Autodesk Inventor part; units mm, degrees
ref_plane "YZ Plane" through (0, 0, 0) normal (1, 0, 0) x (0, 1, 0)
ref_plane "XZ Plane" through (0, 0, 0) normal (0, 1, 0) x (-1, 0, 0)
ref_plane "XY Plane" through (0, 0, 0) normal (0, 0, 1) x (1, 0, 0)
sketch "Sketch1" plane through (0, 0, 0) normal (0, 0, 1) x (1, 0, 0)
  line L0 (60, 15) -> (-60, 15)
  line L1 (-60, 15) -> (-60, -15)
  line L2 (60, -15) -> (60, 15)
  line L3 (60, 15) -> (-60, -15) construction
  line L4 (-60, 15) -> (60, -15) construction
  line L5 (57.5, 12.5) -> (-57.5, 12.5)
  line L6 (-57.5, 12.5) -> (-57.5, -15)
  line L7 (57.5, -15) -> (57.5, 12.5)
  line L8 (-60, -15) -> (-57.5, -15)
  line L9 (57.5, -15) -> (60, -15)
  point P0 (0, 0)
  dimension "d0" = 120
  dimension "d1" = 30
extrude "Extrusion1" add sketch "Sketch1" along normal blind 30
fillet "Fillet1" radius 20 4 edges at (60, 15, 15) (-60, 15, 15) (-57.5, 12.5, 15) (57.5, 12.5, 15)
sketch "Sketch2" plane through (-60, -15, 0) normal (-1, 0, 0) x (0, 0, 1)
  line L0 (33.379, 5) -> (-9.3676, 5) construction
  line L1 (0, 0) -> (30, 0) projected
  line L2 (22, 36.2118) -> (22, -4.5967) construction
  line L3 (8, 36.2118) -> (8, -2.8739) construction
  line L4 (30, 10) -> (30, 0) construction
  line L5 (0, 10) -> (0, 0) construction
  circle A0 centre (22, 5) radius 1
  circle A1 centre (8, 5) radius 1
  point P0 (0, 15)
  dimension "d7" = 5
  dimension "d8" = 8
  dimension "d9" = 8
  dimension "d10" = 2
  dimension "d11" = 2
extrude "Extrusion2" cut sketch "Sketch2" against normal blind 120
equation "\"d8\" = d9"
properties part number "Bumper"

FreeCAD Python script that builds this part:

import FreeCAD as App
import Part
import Sketcher
from FreeCAD import Vector


def edges_at(feature, points):
    """Names of the edges that pass closest to the given points."""
    edges = feature.Shape.Edges
    near = lambda p: min(range(len(edges)), key=lambda i: edges[i].distToShape(Part.Vertex(*p))[0])
    return sorted({f"Edge{near(p) + 1}" for p in points})


def add_polygon(sketch, points):
    """Adds a closed chain of lines whose ends are joined by coincident constraints."""
    first, n = sketch.GeometryCount, len(points)
    for a, b in zip(points, points[1:] + points[:1]):
        sketch.addGeometry(Part.LineSegment(App.Vector(*a, 0), App.Vector(*b, 0)), False)
    for i in range(n):
        sketch.addConstraint(Sketcher.Constraint("Coincident", first + i, 2, first + (i + 1) % n, 1))

doc = App.newDocument("Part")
params = doc.addObject("Spreadsheet::Sheet", "Params")
for row, (alias, value) in enumerate([
    ("sketch1_width", "120 mm"),
    ("sketch1_height", "30 mm"),
    ("sketch1_width2", "115 mm"),
    ("sketch1_height2", "27.5 mm"),
    ("pad1_length", "30 mm"),
    ("fillet_radius", "20 mm"),
    ("sketch2_diameter", "2 mm"),
    ("pocket1_length", "120 mm"),
], start=1):
    params.set(f"A{row}", alias)
    params.set(f"B{row}", "=" + value)
    params.setAlias(f"B{row}", alias)

body = doc.addObject("PartDesign::Body", "Body")

# Sketch on XY plane
sketch1 = body.newObject("Sketcher::SketchObject", "Sketch")
sketch1.AttachmentSupport = (doc.getObject("XY_Plane"), [""])
sketch1.MapMode = "FlatFace"
add_polygon(sketch1, [(60, -15), (60, 15), (-60, 15), (-60, -15), (-57.5, -15), (-57.5, 12.5), (57.5, 12.5), (57.5, -15)])  # lines 0-7
sketch1.addConstraint([
    Sketcher.Constraint("Vertical", 0),
    Sketcher.Constraint("Horizontal", 1),
    Sketcher.Constraint("Vertical", 2),
    Sketcher.Constraint("Horizontal", 3),
    Sketcher.Constraint("Vertical", 4),
    Sketcher.Constraint("Horizontal", 5),
    Sketcher.Constraint("Vertical", 6),
    Sketcher.Constraint("Horizontal", 7),
    Sketcher.Constraint("Symmetric", 0, 2, 2, 2, -1, 1),
    Sketcher.Constraint("Symmetric", 3, 2, 6, 2, -2),
    Sketcher.Constraint("DistanceX", 1, 2, 1, 1, 120.0),
    Sketcher.Constraint("DistanceY", 0, 1, 0, 2, 30.0),
    Sketcher.Constraint("DistanceX", 5, 1, 5, 2, 115.0),
    Sketcher.Constraint("DistanceY", 4, 1, 4, 2, 27.5),
])
sketch1.setExpression("Constraints[18]", "Params.sketch1_width")
sketch1.setExpression("Constraints[19]", "Params.sketch1_height")
sketch1.setExpression("Constraints[20]", "Params.sketch1_width2")
sketch1.setExpression("Constraints[21]", "Params.sketch1_height2")
pad1 = body.newObject("PartDesign::Pad", "Pad")
pad1.Profile = sketch1
pad1.setExpression("Length", "Params.pad1_length")
doc.recompute()

fillet = body.newObject("PartDesign::Fillet", "Fillet")
fillet.Base = (pad1, edges_at(pad1, [
    (60, 15, 15),
    (-60, 15, 15),
    (-57.5, 12.5, 15),
    (57.5, 12.5, 15),
]))
fillet.setExpression("Radius", "Params.fillet_radius")

# Sketch on YZ plane
sketch2 = body.newObject("Sketcher::SketchObject", "Sketch001")
sketch2.AttachmentSupport = (doc.getObject("YZ_Plane"), [""])
sketch2.MapMode = "FlatFace"
sketch2.AttachmentOffset = App.Placement(Vector(0, 0, -60), App.Rotation())
sketch2.addGeometry([
    Part.Circle(Vector(-10, 22, 0), Vector(0, 0, 1), 1),
    Part.Circle(Vector(-10, 8, 0), Vector(0, 0, 1), 1),
], False)
sketch2.addConstraint([
    Sketcher.Constraint("Equal", 0, 1),
    Sketcher.Constraint("Vertical", 0, 3, 1, 3),
    Sketcher.Constraint("Diameter", 0, 2.0),
    Sketcher.Constraint("DistanceY", -1, 1, 1, 3, 8.0),
    Sketcher.Constraint("DistanceX", 0, 3, -1, 1, 10.0),
    Sketcher.Constraint("DistanceY", -1, 1, 0, 3, 22.0),
])
sketch2.setExpression("Constraints[2]", "Params.sketch2_diameter")
pocket1 = body.newObject("PartDesign::Pocket", "Pocket")
pocket1.Profile = sketch2
pocket1.setExpression("Length", "Params.pocket1_length")
pocket1.Reversed = True

doc.recompute()
